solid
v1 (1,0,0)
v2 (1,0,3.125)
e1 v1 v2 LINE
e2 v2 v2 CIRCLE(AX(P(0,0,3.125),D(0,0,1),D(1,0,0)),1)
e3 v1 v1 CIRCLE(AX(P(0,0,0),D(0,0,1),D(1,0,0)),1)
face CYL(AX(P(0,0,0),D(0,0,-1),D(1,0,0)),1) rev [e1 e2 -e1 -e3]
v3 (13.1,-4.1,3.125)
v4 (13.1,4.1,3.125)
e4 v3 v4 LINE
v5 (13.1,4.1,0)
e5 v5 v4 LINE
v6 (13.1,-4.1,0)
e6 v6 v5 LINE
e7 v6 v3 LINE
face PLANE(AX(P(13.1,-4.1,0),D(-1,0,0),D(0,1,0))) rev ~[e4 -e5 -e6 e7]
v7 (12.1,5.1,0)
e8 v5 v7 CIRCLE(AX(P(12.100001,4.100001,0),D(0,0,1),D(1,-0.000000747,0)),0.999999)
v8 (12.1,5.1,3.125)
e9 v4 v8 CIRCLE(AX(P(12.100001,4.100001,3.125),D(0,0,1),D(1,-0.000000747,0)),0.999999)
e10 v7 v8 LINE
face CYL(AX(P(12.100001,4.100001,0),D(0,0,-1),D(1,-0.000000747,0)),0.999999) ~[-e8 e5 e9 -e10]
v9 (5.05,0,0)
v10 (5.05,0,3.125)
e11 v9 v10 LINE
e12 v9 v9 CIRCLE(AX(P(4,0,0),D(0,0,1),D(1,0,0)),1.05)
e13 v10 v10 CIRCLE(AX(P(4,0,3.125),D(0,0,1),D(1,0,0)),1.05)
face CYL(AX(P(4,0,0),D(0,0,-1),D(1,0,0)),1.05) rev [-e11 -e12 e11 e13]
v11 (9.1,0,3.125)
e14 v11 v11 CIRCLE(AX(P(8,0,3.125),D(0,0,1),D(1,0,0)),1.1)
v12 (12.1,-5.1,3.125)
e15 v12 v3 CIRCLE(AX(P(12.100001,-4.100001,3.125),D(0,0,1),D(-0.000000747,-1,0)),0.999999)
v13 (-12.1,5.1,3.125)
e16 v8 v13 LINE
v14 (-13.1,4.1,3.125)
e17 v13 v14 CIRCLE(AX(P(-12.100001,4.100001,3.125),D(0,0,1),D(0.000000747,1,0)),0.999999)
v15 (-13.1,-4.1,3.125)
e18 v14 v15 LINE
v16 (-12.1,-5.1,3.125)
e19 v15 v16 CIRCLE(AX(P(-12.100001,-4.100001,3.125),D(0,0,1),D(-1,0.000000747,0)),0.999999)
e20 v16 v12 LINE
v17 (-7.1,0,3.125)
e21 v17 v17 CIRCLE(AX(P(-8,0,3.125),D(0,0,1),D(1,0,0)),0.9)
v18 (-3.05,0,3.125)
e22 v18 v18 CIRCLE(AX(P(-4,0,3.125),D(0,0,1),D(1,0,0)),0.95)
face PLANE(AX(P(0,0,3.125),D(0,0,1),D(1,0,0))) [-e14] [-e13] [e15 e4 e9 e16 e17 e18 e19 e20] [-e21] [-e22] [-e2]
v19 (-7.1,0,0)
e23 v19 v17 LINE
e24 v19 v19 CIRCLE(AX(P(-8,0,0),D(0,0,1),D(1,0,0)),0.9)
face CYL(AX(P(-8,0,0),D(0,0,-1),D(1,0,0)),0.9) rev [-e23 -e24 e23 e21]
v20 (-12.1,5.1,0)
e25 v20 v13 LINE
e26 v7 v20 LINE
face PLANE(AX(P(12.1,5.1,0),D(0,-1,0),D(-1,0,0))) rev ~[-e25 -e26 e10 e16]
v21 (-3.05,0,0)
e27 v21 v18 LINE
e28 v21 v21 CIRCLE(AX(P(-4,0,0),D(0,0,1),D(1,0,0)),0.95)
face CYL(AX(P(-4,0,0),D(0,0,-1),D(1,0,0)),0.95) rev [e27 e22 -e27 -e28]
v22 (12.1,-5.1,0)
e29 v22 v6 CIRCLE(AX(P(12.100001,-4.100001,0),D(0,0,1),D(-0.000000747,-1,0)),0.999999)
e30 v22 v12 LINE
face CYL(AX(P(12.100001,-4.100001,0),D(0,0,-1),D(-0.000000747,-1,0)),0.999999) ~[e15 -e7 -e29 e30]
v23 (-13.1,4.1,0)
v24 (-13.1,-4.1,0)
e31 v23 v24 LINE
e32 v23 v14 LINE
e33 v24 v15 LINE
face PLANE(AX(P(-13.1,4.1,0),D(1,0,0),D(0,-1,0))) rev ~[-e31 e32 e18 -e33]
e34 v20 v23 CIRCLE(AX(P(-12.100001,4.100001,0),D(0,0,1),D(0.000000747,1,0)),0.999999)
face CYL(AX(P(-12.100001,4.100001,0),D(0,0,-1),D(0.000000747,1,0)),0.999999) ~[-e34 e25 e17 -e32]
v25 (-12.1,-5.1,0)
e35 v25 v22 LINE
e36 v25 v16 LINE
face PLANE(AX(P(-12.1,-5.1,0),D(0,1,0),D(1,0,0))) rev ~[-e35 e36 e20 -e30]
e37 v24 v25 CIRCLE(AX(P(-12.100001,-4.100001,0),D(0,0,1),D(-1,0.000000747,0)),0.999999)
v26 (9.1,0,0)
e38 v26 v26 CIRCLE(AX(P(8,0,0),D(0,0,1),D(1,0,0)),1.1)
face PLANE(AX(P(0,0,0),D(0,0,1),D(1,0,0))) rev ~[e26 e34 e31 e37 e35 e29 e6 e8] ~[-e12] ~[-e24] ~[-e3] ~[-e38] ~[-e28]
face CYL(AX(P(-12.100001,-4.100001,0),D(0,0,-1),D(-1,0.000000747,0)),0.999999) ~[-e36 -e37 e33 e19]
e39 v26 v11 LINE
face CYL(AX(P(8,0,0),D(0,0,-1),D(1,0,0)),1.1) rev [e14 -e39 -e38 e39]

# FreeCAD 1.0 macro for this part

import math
import FreeCAD as App
import Part
import Sketcher
from FreeCAD import Vector
Q = App.Units.Quantity

doc = App.newDocument("Part")
body = doc.addObject("PartDesign::Body", "Body")

# Sketch on XY plane
sketch1 = body.newObject("Sketcher::SketchObject", "Sketch")
sketch1.AttachmentSupport = (doc.getObject("XY_Plane"), [""])
sketch1.MapMode = "FlatFace"
sketch1.addGeometry([
    Part.LineSegment(Vector(-12.1, -5.1, 0), Vector(12.1, -5.1, 0)),  # 0
    Part.ArcOfCircle(Part.Circle(Vector(12.1, -4.1, 0), Vector(0, 0, 1), 1), math.radians(-90), math.radians(0)),  # 1
    Part.LineSegment(Vector(13.1, -4.1, 0), Vector(13.1, 4.1, 0)),  # 2
    Part.ArcOfCircle(Part.Circle(Vector(12.1, 4.1, 0), Vector(0, 0, 1), 1), math.radians(0), math.radians(90)),  # 3
    Part.LineSegment(Vector(12.1, 5.1, 0), Vector(-12.1, 5.1, 0)),  # 4
    Part.ArcOfCircle(Part.Circle(Vector(-12.1, 4.1, 0), Vector(0, 0, 1), 1), math.radians(90), math.radians(180)),  # 5
    Part.LineSegment(Vector(-13.1, 4.1, 0), Vector(-13.1, -4.1, 0)),  # 6
    Part.ArcOfCircle(Part.Circle(Vector(-12.1, -4.1, 0), Vector(0, 0, 1), 1), math.radians(180), math.radians(270)),  # 7
    Part.Circle(Vector(-8, 0, 0), Vector(0, 0, 1), 0.9),  # 8
    Part.Circle(Vector(-4, 0, 0), Vector(0, 0, 1), 0.9),  # 9
    Part.Circle(Vector(0, 0, 0), Vector(0, 0, 1), 1),  # 10
    Part.Circle(Vector(4, 0, 0), Vector(0, 0, 1), 1.1),  # 11
    Part.Circle(Vector(8, 0, 0), Vector(0, 0, 1), 1.1),  # 12
], False)
sketch1.addConstraint([
    Sketcher.Constraint("Tangent", 0, 2, 1, 1),
    Sketcher.Constraint("Tangent", 1, 2, 2, 1),
    Sketcher.Constraint("Tangent", 2, 2, 3, 1),
    Sketcher.Constraint("Tangent", 3, 2, 4, 1),
    Sketcher.Constraint("Tangent", 4, 2, 5, 1),
    Sketcher.Constraint("Tangent", 5, 2, 6, 1),
    Sketcher.Constraint("Tangent", 6, 2, 7, 1),
    Sketcher.Constraint("Tangent", 7, 2, 0, 1),
    Sketcher.Constraint("Horizontal", 0),
    Sketcher.Constraint("Vertical", 2),
    Sketcher.Constraint("Horizontal", 4),
    Sketcher.Constraint("Vertical", 6),
    Sketcher.Constraint("Coincident", 10, 3, -1, 1),
    Sketcher.Constraint("Equal", 1, 3),
    Sketcher.Constraint("Equal", 3, 5),
    Sketcher.Constraint("Equal", 5, 7),
    Sketcher.Constraint("Equal", 7, 10),
    Sketcher.Constraint("Symmetric", 1, 3, 5, 3, -1, 1),
    Sketcher.Constraint("Symmetric", 9, 3, 11, 3, -1, 1),
    Sketcher.Constraint("Symmetric", 8, 3, 12, 3, -1, 1),
    Sketcher.Constraint("PointOnObject", 8, 3, -1),
    Sketcher.Constraint("PointOnObject", 9, 3, -1),
    Sketcher.Constraint("Diameter", 10, Q("2 mm")),
    Sketcher.Constraint("Diameter", 8, Q("1.8 mm")),
    Sketcher.Constraint("Diameter", 9, Q("1.9 mm")),
    Sketcher.Constraint("Diameter", 11, Q("2.1 mm")),
    Sketcher.Constraint("Diameter", 12, Q("2.2 mm")),
    Sketcher.Constraint("DistanceX", 0, 1, 0, 2, Q("24.2 mm")),
    Sketcher.Constraint("DistanceY", 2, 1, 2, 2, Q("8.2 mm")),
    Sketcher.Constraint("DistanceX", 8, 3, -1, 1, Q("8 mm")),
    Sketcher.Constraint("DistanceX", 9, 3, -1, 1, Q("4 mm")),
])
pad1 = body.newObject("PartDesign::Pad", "Pad")
pad1.Profile = sketch1
pad1.Length = 3.125

doc.recompute()
